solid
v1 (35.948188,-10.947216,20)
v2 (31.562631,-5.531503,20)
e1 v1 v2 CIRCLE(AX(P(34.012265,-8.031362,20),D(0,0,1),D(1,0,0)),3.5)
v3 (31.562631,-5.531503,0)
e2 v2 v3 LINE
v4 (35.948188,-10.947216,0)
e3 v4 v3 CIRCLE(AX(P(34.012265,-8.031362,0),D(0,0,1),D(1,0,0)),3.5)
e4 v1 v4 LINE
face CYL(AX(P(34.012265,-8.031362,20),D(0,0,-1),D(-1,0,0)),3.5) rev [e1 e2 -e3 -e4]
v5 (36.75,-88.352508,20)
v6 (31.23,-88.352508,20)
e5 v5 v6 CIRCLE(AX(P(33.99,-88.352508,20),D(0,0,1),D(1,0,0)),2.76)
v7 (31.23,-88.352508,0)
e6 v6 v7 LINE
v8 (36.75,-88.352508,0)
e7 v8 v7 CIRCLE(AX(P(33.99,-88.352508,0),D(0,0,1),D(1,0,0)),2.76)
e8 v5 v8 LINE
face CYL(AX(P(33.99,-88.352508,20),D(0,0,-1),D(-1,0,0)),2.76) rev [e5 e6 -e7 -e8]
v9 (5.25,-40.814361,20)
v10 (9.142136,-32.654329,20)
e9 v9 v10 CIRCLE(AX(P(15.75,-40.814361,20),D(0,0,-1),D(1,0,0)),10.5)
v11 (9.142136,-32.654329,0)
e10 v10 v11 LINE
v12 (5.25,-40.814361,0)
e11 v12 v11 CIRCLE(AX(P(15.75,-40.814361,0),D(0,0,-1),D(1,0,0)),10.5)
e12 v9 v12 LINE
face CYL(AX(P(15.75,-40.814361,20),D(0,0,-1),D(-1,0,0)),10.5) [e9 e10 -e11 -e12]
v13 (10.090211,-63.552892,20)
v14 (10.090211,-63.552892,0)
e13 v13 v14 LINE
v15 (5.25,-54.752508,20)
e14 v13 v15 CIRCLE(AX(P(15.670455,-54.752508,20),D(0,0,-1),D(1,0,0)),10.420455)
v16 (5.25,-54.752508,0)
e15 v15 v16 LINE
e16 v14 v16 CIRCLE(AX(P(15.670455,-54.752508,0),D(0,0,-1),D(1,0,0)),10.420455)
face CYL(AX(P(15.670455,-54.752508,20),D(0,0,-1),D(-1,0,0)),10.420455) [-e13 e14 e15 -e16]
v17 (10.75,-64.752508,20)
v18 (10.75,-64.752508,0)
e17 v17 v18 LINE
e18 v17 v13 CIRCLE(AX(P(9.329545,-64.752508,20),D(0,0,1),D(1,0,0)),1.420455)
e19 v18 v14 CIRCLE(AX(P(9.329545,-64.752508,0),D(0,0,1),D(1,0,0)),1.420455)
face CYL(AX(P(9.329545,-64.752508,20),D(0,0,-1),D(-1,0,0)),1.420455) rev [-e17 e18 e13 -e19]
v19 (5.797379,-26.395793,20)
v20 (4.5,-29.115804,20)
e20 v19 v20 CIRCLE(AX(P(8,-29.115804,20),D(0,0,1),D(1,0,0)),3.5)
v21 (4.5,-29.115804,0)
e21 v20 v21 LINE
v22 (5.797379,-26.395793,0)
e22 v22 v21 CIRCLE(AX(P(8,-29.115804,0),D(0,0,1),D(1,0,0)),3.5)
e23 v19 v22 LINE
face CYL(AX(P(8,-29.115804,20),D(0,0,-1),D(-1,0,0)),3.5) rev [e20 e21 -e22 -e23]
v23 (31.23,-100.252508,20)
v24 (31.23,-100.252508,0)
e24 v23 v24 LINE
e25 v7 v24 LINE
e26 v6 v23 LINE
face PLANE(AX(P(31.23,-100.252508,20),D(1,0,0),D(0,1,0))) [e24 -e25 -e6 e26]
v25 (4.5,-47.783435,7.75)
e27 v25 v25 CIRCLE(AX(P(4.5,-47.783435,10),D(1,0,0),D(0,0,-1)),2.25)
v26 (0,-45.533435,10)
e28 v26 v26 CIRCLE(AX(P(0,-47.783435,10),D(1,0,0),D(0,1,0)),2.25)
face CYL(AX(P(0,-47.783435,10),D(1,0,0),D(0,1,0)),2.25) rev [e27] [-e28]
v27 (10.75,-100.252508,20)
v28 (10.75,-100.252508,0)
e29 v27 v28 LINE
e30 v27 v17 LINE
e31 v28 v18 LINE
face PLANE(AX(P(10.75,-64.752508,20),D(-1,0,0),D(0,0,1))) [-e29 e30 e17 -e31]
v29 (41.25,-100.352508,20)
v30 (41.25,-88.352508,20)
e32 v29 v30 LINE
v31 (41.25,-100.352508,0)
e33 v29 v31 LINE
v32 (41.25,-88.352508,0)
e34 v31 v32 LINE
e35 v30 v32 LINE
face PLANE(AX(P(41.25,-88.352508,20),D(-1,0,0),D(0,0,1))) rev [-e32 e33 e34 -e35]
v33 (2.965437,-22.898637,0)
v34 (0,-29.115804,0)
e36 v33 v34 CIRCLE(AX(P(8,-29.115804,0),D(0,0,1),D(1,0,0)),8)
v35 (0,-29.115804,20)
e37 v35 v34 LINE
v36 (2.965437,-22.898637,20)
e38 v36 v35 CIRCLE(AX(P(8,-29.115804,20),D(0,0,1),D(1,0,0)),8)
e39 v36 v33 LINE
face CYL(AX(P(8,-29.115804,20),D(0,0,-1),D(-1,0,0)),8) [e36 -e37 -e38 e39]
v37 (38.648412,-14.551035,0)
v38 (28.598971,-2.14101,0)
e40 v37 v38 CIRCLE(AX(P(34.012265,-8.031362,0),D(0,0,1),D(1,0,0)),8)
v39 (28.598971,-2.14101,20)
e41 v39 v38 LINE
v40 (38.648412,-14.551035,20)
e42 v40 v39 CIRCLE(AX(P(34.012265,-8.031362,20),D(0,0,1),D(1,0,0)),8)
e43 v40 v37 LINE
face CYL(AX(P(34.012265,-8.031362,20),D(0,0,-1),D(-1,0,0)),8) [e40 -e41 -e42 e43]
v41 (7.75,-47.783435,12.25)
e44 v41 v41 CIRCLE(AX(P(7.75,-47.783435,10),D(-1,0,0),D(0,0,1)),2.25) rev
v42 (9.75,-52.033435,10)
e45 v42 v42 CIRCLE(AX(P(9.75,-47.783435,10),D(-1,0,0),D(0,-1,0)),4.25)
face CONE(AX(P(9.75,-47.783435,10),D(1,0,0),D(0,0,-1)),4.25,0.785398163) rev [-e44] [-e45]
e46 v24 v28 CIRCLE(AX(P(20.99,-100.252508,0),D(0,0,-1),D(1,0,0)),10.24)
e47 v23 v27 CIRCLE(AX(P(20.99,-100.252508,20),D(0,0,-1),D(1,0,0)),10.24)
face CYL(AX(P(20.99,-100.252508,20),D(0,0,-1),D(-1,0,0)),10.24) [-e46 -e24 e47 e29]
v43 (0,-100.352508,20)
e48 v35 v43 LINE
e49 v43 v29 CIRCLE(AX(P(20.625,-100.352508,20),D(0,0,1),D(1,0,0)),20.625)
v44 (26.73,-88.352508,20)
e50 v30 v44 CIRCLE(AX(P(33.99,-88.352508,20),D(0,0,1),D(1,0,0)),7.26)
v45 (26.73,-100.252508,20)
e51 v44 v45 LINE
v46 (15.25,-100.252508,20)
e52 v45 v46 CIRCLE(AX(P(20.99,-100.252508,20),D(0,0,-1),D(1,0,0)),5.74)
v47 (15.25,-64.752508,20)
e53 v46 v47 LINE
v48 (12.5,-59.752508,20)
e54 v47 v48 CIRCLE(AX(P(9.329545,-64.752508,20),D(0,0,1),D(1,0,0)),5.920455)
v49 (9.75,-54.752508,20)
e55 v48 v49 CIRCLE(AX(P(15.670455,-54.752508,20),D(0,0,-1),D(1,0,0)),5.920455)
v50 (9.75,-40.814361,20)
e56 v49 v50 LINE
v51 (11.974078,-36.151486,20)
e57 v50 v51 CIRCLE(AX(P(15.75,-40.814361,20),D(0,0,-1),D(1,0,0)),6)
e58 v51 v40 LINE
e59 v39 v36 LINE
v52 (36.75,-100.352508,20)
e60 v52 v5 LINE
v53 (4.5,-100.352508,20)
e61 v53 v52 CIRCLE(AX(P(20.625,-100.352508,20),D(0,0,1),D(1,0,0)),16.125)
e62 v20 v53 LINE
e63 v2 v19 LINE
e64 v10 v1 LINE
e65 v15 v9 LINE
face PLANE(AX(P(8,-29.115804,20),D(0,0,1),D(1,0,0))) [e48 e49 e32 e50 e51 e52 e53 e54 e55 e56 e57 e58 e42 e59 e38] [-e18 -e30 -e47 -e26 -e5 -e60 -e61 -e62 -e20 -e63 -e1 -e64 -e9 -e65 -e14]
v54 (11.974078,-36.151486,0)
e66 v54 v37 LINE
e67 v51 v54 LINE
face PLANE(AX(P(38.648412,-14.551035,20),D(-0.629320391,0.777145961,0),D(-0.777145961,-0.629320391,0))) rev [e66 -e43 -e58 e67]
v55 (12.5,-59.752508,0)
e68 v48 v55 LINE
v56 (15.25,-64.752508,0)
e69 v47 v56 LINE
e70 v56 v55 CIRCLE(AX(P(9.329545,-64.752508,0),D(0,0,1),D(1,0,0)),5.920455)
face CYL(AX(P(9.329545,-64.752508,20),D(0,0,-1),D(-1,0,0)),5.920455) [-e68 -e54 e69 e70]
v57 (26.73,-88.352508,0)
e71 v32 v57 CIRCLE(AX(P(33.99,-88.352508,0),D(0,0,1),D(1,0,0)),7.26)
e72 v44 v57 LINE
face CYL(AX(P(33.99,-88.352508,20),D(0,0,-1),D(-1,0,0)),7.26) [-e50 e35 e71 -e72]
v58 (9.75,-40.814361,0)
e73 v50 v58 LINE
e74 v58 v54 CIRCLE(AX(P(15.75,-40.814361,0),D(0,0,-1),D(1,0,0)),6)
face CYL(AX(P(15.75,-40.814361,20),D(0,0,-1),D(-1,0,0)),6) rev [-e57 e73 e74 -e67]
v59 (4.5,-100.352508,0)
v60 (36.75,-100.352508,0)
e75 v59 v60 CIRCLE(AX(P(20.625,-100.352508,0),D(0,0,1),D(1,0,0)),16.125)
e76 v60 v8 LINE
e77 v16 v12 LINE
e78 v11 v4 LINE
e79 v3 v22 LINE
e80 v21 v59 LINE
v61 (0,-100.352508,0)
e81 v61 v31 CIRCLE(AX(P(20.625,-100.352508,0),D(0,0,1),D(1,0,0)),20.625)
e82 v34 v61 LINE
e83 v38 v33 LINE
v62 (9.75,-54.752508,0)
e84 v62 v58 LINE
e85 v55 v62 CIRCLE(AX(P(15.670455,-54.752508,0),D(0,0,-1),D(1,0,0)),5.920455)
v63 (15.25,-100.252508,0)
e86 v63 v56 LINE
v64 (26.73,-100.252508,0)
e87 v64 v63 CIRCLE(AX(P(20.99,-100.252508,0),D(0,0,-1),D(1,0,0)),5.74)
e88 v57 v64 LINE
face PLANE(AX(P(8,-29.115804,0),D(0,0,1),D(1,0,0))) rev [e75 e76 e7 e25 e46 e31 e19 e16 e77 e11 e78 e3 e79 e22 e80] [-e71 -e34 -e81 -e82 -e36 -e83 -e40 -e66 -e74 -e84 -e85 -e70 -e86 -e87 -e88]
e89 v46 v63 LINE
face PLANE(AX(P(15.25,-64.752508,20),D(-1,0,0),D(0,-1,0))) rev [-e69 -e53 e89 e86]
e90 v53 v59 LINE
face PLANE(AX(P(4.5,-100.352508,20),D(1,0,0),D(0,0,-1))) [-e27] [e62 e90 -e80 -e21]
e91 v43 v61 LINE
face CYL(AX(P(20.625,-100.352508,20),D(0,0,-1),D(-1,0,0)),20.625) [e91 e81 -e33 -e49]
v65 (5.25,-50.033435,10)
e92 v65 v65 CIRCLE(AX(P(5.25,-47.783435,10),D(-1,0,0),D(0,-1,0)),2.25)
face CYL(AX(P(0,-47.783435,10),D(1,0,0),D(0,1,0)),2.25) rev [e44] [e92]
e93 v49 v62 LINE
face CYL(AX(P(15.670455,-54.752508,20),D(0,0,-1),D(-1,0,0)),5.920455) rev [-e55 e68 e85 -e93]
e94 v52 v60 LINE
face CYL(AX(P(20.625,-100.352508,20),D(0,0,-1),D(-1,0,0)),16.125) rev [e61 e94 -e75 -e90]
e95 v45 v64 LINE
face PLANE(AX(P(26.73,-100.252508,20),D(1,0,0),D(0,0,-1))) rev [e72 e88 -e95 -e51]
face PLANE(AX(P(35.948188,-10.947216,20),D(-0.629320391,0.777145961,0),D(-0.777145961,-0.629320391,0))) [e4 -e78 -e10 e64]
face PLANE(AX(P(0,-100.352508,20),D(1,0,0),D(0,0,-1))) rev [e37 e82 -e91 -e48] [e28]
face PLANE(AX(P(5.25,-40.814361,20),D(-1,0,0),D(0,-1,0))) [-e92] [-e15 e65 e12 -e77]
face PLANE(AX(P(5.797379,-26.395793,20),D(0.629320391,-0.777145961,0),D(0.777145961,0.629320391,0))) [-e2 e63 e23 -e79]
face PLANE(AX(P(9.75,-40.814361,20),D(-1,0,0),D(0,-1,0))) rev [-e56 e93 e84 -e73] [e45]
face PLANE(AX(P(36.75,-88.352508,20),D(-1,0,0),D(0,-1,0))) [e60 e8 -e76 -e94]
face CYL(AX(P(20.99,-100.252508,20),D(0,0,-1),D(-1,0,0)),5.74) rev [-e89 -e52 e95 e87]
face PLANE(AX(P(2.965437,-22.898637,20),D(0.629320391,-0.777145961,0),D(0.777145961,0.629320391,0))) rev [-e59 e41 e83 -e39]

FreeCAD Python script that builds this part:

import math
import FreeCAD as App
import Part
import Sketcher
from FreeCAD import Vector
Q = App.Units.Quantity


def edges_at(feature, points):
    """Names of the edges that pass closest to the given points."""
    edges = feature.Shape.Edges
    near = lambda p: min(range(len(edges)), key=lambda i: edges[i].distToShape(Part.Vertex(*p))[0])
    return sorted({f"Edge{near(p) + 1}" for p in points})

doc = App.newDocument("Part")
body = doc.addObject("PartDesign::Body", "Body")

sketch1 = body.newObject("Sketcher::SketchObject", "Sketch")
sketch1.AttachmentSupport = (doc.getObject("XY_Plane"), [""])
sketch1.MapMode = "FlatFace"
sketch1.addGeometry([
    Part.LineSegment(Vector(0, -29.115804, 0), Vector(0, -100.352508, 0)),
    Part.ArcOfCircle(Part.Circle(Vector(20.625, -100.352508, 0), Vector(0, 0, 1), 20.625), math.radians(180), math.radians(360)),
    Part.LineSegment(Vector(41.25, -100.352508, 0), Vector(41.25, -88.352508, 0)),
    Part.ArcOfCircle(Part.Circle(Vector(33.99, -88.352508, 0), Vector(0, 0, 1), 7.26), math.radians(0), math.radians(180)),
    Part.LineSegment(Vector(26.73, -88.352508, 0), Vector(26.73, -100.252508, 0)),
    Part.ArcOfCircle(Part.Circle(Vector(20.99, -100.252508, 0), Vector(0, 0, 1), 5.74), math.radians(180), math.radians(360)),
    Part.LineSegment(Vector(15.25, -100.252508, 0), Vector(15.25, -64.752508, 0)),
    Part.ArcOfCircle(Part.Circle(Vector(9.329545, -64.752508, 0), Vector(0, 0, 1), 5.920455), math.radians(0), math.radians(57.621588)),
    Part.ArcOfCircle(Part.Circle(Vector(15.670455, -54.752508, 0), Vector(0, 0, 1), 5.920455), math.radians(-180), math.radians(-122.378413)),
    Part.LineSegment(Vector(9.75, -54.752508, 0), Vector(9.75, -40.814361, 0)),
    Part.ArcOfCircle(Part.Circle(Vector(15.75, -40.814361, 0), Vector(0, 0, 1), 6), math.radians(129), math.radians(180)),
    Part.LineSegment(Vector(11.974078, -36.151486, 0), Vector(38.648412, -14.551035, 0)),
    Part.ArcOfCircle(Part.Circle(Vector(34.012265, -8.031362, 0), Vector(0, 0, 1), 8), math.radians(-54.583322), math.radians(132.583322)),
    Part.LineSegment(Vector(28.598971, -2.14101, 0), Vector(2.965437, -22.898637, 0)),
    Part.ArcOfCircle(Part.Circle(Vector(8, -29.115804, 0), Vector(0, 0, 1), 8), math.radians(129), math.radians(180)),
    Part.LineSegment(Vector(4.5, -100.352508, 0), Vector(4.5, -29.115804, 0)),
    Part.ArcOfCircle(Part.Circle(Vector(8, -29.115804, 0), Vector(0, 0, 1), 3.5), math.radians(129), math.radians(180)),
    Part.LineSegment(Vector(5.797379, -26.395793, 0), Vector(31.562631, -5.531503, 0)),
    Part.ArcOfCircle(Part.Circle(Vector(34.012265, -8.031362, 0), Vector(0, 0, 1), 3.5), math.radians(-56.418609), math.radians(134.418609)),
    Part.LineSegment(Vector(35.948188, -10.947216, 0), Vector(9.142136, -32.654329, 0)),
    Part.ArcOfCircle(Part.Circle(Vector(15.75, -40.814361, 0), Vector(0, 0, 1), 10.5), math.radians(129), math.radians(180)),
    Part.LineSegment(Vector(5.25, -40.814361, 0), Vector(5.25, -54.752508, 0)),
    Part.ArcOfCircle(Part.Circle(Vector(15.670455, -54.752508, 0), Vector(0, 0, 1), 10.420455), math.radians(-180), math.radians(-122.378413)),
    Part.ArcOfCircle(Part.Circle(Vector(9.329545, -64.752508, 0), Vector(0, 0, 1), 1.420455), math.radians(0), math.radians(57.621588)),
    Part.LineSegment(Vector(10.75, -64.752508, 0), Vector(10.75, -100.252508, 0)),
    Part.ArcOfCircle(Part.Circle(Vector(20.99, -100.252508, 0), Vector(0, 0, 1), 10.24), math.radians(180), math.radians(360)),
    Part.LineSegment(Vector(31.23, -100.252508, 0), Vector(31.23, -88.352508, 0)),
    Part.ArcOfCircle(Part.Circle(Vector(33.99, -88.352508, 0), Vector(0, 0, 1), 2.76), math.radians(0), math.radians(180)),
    Part.LineSegment(Vector(36.75, -88.352508, 0), Vector(36.75, -100.352508, 0)),
    Part.ArcOfCircle(Part.Circle(Vector(20.625, -100.352508, 0), Vector(0, 0, 1), 16.125), math.radians(180), math.radians(360)),
], False)
sketch1.addConstraint([
    Sketcher.Constraint("Tangent", 0, 2, 1, 1),
    Sketcher.Constraint("Tangent", 1, 2, 2, 1),
    Sketcher.Constraint("Tangent", 2, 2, 3, 1),
    Sketcher.Constraint("Tangent", 3, 2, 4, 1),
    Sketcher.Constraint("Tangent", 4, 2, 5, 2),
    Sketcher.Constraint("Tangent", 5, 1, 6, 1),
    Sketcher.Constraint("Tangent", 6, 2, 7, 1),
    Sketcher.Constraint("Tangent", 7, 2, 8, 2),
    Sketcher.Constraint("Tangent", 8, 1, 9, 1),
    Sketcher.Constraint("Tangent", 9, 2, 10, 2),
    Sketcher.Constraint("Tangent", 10, 1, 11, 1),
    Sketcher.Constraint("Coincident", 11, 2, 12, 1),
    Sketcher.Constraint("Coincident", 12, 2, 13, 1),
    Sketcher.Constraint("Tangent", 13, 2, 14, 1),
    Sketcher.Constraint("Tangent", 14, 2, 0, 1),
    Sketcher.Constraint("Tangent", 15, 2, 16, 2),
    Sketcher.Constraint("Tangent", 16, 1, 17, 1),
    Sketcher.Constraint("Coincident", 17, 2, 18, 2),
    Sketcher.Constraint("Coincident", 18, 1, 19, 1),
    Sketcher.Constraint("Tangent", 19, 2, 20, 1),
    Sketcher.Constraint("Tangent", 20, 2, 21, 1),
    Sketcher.Constraint("Tangent", 21, 2, 22, 1),
    Sketcher.Constraint("Tangent", 22, 2, 23, 2),
    Sketcher.Constraint("Tangent", 23, 1, 24, 1),
    Sketcher.Constraint("Tangent", 24, 2, 25, 1),
    Sketcher.Constraint("Tangent", 25, 2, 26, 1),
    Sketcher.Constraint("Tangent", 26, 2, 27, 2),
    Sketcher.Constraint("Tangent", 27, 1, 28, 1),
    Sketcher.Constraint("Tangent", 28, 2, 29, 2),
    Sketcher.Constraint("Tangent", 29, 1, 15, 1),
    Sketcher.Constraint("Vertical", 0),
    Sketcher.Constraint("Vertical", 2),
    Sketcher.Constraint("Vertical", 4),
    Sketcher.Constraint("Vertical", 6),
    Sketcher.Constraint("Vertical", 9),
    Sketcher.Constraint("Vertical", 15),
    Sketcher.Constraint("Vertical", 21),
    Sketcher.Constraint("Vertical", 24),
    Sketcher.Constraint("Vertical", 26),
    Sketcher.Constraint("Vertical", 28),
    Sketcher.Constraint("Coincident", 16, 3, 14, 3),
    Sketcher.Constraint("Coincident", 18, 3, 12, 3),
    Sketcher.Constraint("Coincident", 20, 3, 10, 3),
    Sketcher.Constraint("Coincident", 22, 3, 8, 3),
    Sketcher.Constraint("Coincident", 23, 3, 7, 3),
    Sketcher.Constraint("Coincident", 25, 3, 5, 3),
    Sketcher.Constraint("Coincident", 27, 3, 3, 3),
    Sketcher.Constraint("Coincident", 29, 3, 1, 3),
    Sketcher.Constraint("Equal", 7, 8),
    Sketcher.Constraint("Equal", 12, 14),
    Sketcher.Constraint("Equal", 16, 18),
    Sketcher.Constraint("PointOnObject", 0, 2, -2),
    Sketcher.Constraint("Parallel", 11, 13),
    Sketcher.Constraint("Parallel", 13, 17),
    Sketcher.Constraint("Parallel", 17, 19),
    Sketcher.Constraint("Radius", 10, Q("6 mm")),
    Sketcher.Constraint("Radius", 12, Q("8 mm")),
    Sketcher.Constraint("Radius", 16, Q("3.5 mm")),
    Sketcher.Constraint("DistanceY", 2, 1, 2, 2, Q("12 mm")),
    Sketcher.Constraint("Angle", 11, Q("39 deg")),
    Sketcher.Constraint("Radius", 3, Q("7.26 mm")),
    Sketcher.Constraint("Radius", 5, Q("5.74 mm")),
    Sketcher.Constraint("DistanceY", 4, 2, 4, 1, Q("11.9 mm")),
    Sketcher.Constraint("DistanceY", 6, 1, 6, 2, Q("35.5 mm")),
    Sketcher.Constraint("Radius", 1, Q("20.625 mm")),
    Sketcher.Constraint("DistanceY", 7, 3, 8, 3, Q("10 mm")),
    Sketcher.Constraint("DistanceX", -1, 1, 7, 2, Q("12.5 mm")),
    Sketcher.Constraint("DistanceY", 10, 3, 12, 3, Q("32.782999 mm")),
    Sketcher.Constraint("DistanceY", 0, 2, 0, 1, Q("71.236704 mm")),
    Sketcher.Constraint("DistanceY", 9, 1, 9, 2, Q("13.938147 mm")),
    Sketcher.Constraint("DistanceY", 1, 3, -1, 1, Q("100.352508 mm")),
    Sketcher.Constraint("DistanceX", -1, 1, 12, 2, Q("28.598971 mm")),
])
pad1 = body.newObject("PartDesign::Pad", "Pad")
pad1.Profile = sketch1
pad1.Length = 20

sketch2 = body.newObject("Sketcher::SketchObject", "Sketch001")
sketch2.AttachmentSupport = (doc.getObject("YZ_Plane"), [""])
sketch2.MapMode = "FlatFace"
sketch2.AttachmentOffset = App.Placement(Vector(0, 0, 9.75), App.Rotation())
sketch2.addGeometry(Part.Circle(Vector(-47.783435, 10, 0), Vector(0, 0, 1), 2.25), False)
sketch2.addConstraint([
    Sketcher.Constraint("Diameter", 0, Q("4.5 mm")),
    Sketcher.Constraint("DistanceY", -1, 1, 0, 3, Q("10 mm")),
    Sketcher.Constraint("DistanceX", 0, 3, -1, 1, Q("47.783435 mm")),
])
pocket1 = body.newObject("PartDesign::Pocket", "Pocket")
pocket1.Profile = sketch2
pocket1.Type = "ThroughAll"
pocket1.Midplane = True
doc.recompute()

chamfer = body.newObject("PartDesign::Chamfer", "Chamfer")
chamfer.Base = (pocket1, edges_at(pocket1, [(9.75, -50.033, 10)]))
chamfer.Size = 2

doc.recompute()
